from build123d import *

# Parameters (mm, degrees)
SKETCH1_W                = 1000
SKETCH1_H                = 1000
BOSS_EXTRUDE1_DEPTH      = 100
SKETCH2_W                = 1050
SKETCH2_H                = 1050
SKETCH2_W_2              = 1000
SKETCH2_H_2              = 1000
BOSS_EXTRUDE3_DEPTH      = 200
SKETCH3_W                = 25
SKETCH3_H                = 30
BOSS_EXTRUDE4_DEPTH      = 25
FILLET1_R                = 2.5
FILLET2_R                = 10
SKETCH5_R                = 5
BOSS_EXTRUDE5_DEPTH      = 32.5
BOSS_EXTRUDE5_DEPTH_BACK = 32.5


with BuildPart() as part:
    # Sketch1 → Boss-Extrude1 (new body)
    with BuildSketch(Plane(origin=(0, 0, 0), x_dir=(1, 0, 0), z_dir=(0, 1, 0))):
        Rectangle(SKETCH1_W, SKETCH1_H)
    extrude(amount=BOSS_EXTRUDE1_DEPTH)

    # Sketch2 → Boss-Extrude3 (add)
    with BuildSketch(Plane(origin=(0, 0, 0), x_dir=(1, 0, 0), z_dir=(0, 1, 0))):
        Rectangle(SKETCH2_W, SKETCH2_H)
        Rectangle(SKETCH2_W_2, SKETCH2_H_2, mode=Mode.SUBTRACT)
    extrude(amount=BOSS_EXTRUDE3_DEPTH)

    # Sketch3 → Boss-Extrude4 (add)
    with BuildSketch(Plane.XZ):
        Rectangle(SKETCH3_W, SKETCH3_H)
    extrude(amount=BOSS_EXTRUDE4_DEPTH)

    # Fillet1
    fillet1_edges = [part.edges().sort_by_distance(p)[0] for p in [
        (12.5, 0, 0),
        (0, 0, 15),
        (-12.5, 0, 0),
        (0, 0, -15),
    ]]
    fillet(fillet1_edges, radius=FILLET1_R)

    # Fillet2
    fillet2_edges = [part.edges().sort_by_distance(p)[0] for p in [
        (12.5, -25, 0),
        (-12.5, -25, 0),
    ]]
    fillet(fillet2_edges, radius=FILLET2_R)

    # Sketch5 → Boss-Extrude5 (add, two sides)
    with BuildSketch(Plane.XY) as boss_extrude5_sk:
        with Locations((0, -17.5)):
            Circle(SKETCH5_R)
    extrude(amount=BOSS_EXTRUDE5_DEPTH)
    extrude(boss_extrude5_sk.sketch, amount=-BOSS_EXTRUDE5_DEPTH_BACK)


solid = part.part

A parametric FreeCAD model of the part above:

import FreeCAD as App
import Part
import Sketcher

V = App.Vector
Q = App.Units.Quantity


def edges_at(feature, points):
    """Names of the edges that pass closest to the given points."""
    edges = feature.Shape.Edges
    near = lambda p: min(range(len(edges)), key=lambda i: edges[i].distToShape(Part.Vertex(*p))[0])
    return sorted({f"Edge{near(p) + 1}" for p in points})

doc = App.newDocument("Part")
body = doc.addObject("PartDesign::Body", "Body")

# Sketch on XZ plane
sketch1 = doc.addObject("Sketcher::SketchObject", "Sketch")
body.addObject(sketch1)
sketch1.AttachmentSupport = (doc.XZ_Plane, [""])
sketch1.MapMode = "FlatFace"
sketch1.addGeometry([
    Part.LineSegment(V(-500, -500, 0), V(-500, 500, 0)),
    Part.LineSegment(V(-500, 500, 0), V(500, 500, 0)),
    Part.LineSegment(V(500, 500, 0), V(500, -500, 0)),
    Part.LineSegment(V(500, -500, 0), V(-500, -500, 0)),
], False)
sketch1.addConstraint([
    Sketcher.Constraint("Coincident", 0, 2, 1, 1),
    Sketcher.Constraint("Coincident", 1, 2, 2, 1),
    Sketcher.Constraint("Coincident", 2, 2, 3, 1),
    Sketcher.Constraint("Coincident", 3, 2, 0, 1),
    Sketcher.Constraint("Vertical", 0),
    Sketcher.Constraint("Horizontal", 1),
    Sketcher.Constraint("Vertical", 2),
    Sketcher.Constraint("Horizontal", 3),
    Sketcher.Constraint("Symmetric", 0, 2, 2, 2, -1, 1),
    Sketcher.Constraint("Equal", 3, 0),
    Sketcher.Constraint("DistanceX", 1, 1, 1, 2, Q("1000 mm")),
])
pad1 = doc.addObject("PartDesign::Pad", "Pad")
body.addObject(pad1)
pad1.Profile = sketch1
pad1.Length = 100
pad1.Reversed = True

# Sketch on XZ plane
sketch2 = doc.addObject("Sketcher::SketchObject", "Sketch001")
body.addObject(sketch2)
sketch2.AttachmentSupport = (doc.XZ_Plane, [""])
sketch2.MapMode = "FlatFace"
sketch2.addGeometry([
    Part.LineSegment(V(-525, -525, 0), V(-525, 525, 0)),  # 0
    Part.LineSegment(V(-525, 525, 0), V(525, 525, 0)),  # 1
    Part.LineSegment(V(525, 525, 0), V(525, -525, 0)),  # 2
    Part.LineSegment(V(525, -525, 0), V(-525, -525, 0)),  # 3
    Part.LineSegment(V(500, 500, 0), V(-500, 500, 0)),  # 4
    Part.LineSegment(V(-500, 500, 0), V(-500, -500, 0)),  # 5
    Part.LineSegment(V(-500, -500, 0), V(500, -500, 0)),  # 6
    Part.LineSegment(V(500, -500, 0), V(500, 500, 0)),  # 7
], False)
sketch2.addConstraint([
    Sketcher.Constraint("Coincident", 0, 2, 1, 1),
    Sketcher.Constraint("Coincident", 1, 2, 2, 1),
    Sketcher.Constraint("Coincident", 2, 2, 3, 1),
    Sketcher.Constraint("Coincident", 3, 2, 0, 1),
    Sketcher.Constraint("Coincident", 4, 2, 5, 1),
    Sketcher.Constraint("Coincident", 5, 2, 6, 1),
    Sketcher.Constraint("Coincident", 6, 2, 7, 1),
    Sketcher.Constraint("Coincident", 7, 2, 4, 1),
    Sketcher.Constraint("Vertical", 0),
    Sketcher.Constraint("Horizontal", 1),
    Sketcher.Constraint("Vertical", 2),
    Sketcher.Constraint("Horizontal", 3),
    Sketcher.Constraint("Horizontal", 4),
    Sketcher.Constraint("Vertical", 5),
    Sketcher.Constraint("Horizontal", 6),
    Sketcher.Constraint("Vertical", 7),
    Sketcher.Constraint("Symmetric", 0, 2, 2, 2, -1, 1),
    Sketcher.Constraint("Symmetric", 4, 2, 6, 2, -1, 1),
    Sketcher.Constraint("Equal", 3, 0),
    Sketcher.Constraint("Equal", 6, 5),
    Sketcher.Constraint("DistanceX", 1, 1, 1, 2, Q("1050 mm")),
    Sketcher.Constraint("DistanceX", 4, 2, 4, 1, Q("1000 mm")),
])
pad2 = doc.addObject("PartDesign::Pad", "Pad001")
body.addObject(pad2)
pad2.Profile = sketch2
pad2.Length = 200
pad2.Reversed = True

# Sketch on XZ plane
sketch3 = doc.addObject("Sketcher::SketchObject", "Sketch002")
body.addObject(sketch3)
sketch3.AttachmentSupport = (doc.XZ_Plane, [""])
sketch3.MapMode = "FlatFace"
sketch3.addGeometry([
    Part.LineSegment(V(-12, 15, 0), V(-12, -15, 0)),
    Part.LineSegment(V(-12, -15, 0), V(12, -15, 0)),
    Part.LineSegment(V(12, -15, 0), V(12, 15, 0)),
    Part.LineSegment(V(12, 15, 0), V(-12, 15, 0)),
], False)
sketch3.addConstraint([
    Sketcher.Constraint("Coincident", 0, 2, 1, 1),
    Sketcher.Constraint("Coincident", 1, 2, 2, 1),
    Sketcher.Constraint("Coincident", 2, 2, 3, 1),
    Sketcher.Constraint("Coincident", 3, 2, 0, 1),
    Sketcher.Constraint("Vertical", 0),
    Sketcher.Constraint("Horizontal", 1),
    Sketcher.Constraint("Vertical", 2),
    Sketcher.Constraint("Horizontal", 3),
    Sketcher.Constraint("Symmetric", 0, 2, 2, 2, -1, 1),
    Sketcher.Constraint("DistanceX", 1, 1, 1, 2, Q("25 mm")),
    Sketcher.Constraint("DistanceY", 0, 2, 0, 1, Q("30 mm")),
])
pad3 = doc.addObject("PartDesign::Pad", "Pad002")
body.addObject(pad3)
pad3.Profile = sketch3
pad3.Length = 25
doc.recompute()

fillet = doc.addObject("PartDesign::Fillet", "Fillet")
body.addObject(fillet)
fillet.Base = (pad3, edges_at(pad3, [
    (12.5, 0, 0),
    (0, 0, 15),
    (-12.5, 0, 0),
    (0, 0, -15),
]))
fillet.Radius = 2.5
doc.recompute()

fillet2 = doc.addObject("PartDesign::Fillet", "Fillet001")
body.addObject(fillet2)
fillet2.Base = (fillet, edges_at(fillet, [(12.5, -25, 0), (-12.5, -25, 0)]))
fillet2.Radius = 10

# Sketch on XY plane
sketch4 = doc.addObject("Sketcher::SketchObject", "Sketch003")
body.addObject(sketch4)
sketch4.AttachmentSupport = (doc.XY_Plane, [""])
sketch4.MapMode = "FlatFace"
sketch4.addGeometry(Part.Circle(V(0, -18, 0), V(0, 0, 1), 5), False)
sketch4.addConstraint([
    Sketcher.Constraint("PointOnObject", 0, 3, -2),
    Sketcher.Constraint("Diameter", 0, Q("10 mm")),
    Sketcher.Constraint("DistanceY", 0, 3, -1, 1, Q("17.5 mm")),
])
pad4 = doc.addObject("PartDesign::Pad", "Pad003")
body.addObject(pad4)
pad4.Profile = sketch4
pad4.Type = "TwoLengths"
pad4.Length = 32.5
pad4.Length2 = 32.5

doc.recompute()
